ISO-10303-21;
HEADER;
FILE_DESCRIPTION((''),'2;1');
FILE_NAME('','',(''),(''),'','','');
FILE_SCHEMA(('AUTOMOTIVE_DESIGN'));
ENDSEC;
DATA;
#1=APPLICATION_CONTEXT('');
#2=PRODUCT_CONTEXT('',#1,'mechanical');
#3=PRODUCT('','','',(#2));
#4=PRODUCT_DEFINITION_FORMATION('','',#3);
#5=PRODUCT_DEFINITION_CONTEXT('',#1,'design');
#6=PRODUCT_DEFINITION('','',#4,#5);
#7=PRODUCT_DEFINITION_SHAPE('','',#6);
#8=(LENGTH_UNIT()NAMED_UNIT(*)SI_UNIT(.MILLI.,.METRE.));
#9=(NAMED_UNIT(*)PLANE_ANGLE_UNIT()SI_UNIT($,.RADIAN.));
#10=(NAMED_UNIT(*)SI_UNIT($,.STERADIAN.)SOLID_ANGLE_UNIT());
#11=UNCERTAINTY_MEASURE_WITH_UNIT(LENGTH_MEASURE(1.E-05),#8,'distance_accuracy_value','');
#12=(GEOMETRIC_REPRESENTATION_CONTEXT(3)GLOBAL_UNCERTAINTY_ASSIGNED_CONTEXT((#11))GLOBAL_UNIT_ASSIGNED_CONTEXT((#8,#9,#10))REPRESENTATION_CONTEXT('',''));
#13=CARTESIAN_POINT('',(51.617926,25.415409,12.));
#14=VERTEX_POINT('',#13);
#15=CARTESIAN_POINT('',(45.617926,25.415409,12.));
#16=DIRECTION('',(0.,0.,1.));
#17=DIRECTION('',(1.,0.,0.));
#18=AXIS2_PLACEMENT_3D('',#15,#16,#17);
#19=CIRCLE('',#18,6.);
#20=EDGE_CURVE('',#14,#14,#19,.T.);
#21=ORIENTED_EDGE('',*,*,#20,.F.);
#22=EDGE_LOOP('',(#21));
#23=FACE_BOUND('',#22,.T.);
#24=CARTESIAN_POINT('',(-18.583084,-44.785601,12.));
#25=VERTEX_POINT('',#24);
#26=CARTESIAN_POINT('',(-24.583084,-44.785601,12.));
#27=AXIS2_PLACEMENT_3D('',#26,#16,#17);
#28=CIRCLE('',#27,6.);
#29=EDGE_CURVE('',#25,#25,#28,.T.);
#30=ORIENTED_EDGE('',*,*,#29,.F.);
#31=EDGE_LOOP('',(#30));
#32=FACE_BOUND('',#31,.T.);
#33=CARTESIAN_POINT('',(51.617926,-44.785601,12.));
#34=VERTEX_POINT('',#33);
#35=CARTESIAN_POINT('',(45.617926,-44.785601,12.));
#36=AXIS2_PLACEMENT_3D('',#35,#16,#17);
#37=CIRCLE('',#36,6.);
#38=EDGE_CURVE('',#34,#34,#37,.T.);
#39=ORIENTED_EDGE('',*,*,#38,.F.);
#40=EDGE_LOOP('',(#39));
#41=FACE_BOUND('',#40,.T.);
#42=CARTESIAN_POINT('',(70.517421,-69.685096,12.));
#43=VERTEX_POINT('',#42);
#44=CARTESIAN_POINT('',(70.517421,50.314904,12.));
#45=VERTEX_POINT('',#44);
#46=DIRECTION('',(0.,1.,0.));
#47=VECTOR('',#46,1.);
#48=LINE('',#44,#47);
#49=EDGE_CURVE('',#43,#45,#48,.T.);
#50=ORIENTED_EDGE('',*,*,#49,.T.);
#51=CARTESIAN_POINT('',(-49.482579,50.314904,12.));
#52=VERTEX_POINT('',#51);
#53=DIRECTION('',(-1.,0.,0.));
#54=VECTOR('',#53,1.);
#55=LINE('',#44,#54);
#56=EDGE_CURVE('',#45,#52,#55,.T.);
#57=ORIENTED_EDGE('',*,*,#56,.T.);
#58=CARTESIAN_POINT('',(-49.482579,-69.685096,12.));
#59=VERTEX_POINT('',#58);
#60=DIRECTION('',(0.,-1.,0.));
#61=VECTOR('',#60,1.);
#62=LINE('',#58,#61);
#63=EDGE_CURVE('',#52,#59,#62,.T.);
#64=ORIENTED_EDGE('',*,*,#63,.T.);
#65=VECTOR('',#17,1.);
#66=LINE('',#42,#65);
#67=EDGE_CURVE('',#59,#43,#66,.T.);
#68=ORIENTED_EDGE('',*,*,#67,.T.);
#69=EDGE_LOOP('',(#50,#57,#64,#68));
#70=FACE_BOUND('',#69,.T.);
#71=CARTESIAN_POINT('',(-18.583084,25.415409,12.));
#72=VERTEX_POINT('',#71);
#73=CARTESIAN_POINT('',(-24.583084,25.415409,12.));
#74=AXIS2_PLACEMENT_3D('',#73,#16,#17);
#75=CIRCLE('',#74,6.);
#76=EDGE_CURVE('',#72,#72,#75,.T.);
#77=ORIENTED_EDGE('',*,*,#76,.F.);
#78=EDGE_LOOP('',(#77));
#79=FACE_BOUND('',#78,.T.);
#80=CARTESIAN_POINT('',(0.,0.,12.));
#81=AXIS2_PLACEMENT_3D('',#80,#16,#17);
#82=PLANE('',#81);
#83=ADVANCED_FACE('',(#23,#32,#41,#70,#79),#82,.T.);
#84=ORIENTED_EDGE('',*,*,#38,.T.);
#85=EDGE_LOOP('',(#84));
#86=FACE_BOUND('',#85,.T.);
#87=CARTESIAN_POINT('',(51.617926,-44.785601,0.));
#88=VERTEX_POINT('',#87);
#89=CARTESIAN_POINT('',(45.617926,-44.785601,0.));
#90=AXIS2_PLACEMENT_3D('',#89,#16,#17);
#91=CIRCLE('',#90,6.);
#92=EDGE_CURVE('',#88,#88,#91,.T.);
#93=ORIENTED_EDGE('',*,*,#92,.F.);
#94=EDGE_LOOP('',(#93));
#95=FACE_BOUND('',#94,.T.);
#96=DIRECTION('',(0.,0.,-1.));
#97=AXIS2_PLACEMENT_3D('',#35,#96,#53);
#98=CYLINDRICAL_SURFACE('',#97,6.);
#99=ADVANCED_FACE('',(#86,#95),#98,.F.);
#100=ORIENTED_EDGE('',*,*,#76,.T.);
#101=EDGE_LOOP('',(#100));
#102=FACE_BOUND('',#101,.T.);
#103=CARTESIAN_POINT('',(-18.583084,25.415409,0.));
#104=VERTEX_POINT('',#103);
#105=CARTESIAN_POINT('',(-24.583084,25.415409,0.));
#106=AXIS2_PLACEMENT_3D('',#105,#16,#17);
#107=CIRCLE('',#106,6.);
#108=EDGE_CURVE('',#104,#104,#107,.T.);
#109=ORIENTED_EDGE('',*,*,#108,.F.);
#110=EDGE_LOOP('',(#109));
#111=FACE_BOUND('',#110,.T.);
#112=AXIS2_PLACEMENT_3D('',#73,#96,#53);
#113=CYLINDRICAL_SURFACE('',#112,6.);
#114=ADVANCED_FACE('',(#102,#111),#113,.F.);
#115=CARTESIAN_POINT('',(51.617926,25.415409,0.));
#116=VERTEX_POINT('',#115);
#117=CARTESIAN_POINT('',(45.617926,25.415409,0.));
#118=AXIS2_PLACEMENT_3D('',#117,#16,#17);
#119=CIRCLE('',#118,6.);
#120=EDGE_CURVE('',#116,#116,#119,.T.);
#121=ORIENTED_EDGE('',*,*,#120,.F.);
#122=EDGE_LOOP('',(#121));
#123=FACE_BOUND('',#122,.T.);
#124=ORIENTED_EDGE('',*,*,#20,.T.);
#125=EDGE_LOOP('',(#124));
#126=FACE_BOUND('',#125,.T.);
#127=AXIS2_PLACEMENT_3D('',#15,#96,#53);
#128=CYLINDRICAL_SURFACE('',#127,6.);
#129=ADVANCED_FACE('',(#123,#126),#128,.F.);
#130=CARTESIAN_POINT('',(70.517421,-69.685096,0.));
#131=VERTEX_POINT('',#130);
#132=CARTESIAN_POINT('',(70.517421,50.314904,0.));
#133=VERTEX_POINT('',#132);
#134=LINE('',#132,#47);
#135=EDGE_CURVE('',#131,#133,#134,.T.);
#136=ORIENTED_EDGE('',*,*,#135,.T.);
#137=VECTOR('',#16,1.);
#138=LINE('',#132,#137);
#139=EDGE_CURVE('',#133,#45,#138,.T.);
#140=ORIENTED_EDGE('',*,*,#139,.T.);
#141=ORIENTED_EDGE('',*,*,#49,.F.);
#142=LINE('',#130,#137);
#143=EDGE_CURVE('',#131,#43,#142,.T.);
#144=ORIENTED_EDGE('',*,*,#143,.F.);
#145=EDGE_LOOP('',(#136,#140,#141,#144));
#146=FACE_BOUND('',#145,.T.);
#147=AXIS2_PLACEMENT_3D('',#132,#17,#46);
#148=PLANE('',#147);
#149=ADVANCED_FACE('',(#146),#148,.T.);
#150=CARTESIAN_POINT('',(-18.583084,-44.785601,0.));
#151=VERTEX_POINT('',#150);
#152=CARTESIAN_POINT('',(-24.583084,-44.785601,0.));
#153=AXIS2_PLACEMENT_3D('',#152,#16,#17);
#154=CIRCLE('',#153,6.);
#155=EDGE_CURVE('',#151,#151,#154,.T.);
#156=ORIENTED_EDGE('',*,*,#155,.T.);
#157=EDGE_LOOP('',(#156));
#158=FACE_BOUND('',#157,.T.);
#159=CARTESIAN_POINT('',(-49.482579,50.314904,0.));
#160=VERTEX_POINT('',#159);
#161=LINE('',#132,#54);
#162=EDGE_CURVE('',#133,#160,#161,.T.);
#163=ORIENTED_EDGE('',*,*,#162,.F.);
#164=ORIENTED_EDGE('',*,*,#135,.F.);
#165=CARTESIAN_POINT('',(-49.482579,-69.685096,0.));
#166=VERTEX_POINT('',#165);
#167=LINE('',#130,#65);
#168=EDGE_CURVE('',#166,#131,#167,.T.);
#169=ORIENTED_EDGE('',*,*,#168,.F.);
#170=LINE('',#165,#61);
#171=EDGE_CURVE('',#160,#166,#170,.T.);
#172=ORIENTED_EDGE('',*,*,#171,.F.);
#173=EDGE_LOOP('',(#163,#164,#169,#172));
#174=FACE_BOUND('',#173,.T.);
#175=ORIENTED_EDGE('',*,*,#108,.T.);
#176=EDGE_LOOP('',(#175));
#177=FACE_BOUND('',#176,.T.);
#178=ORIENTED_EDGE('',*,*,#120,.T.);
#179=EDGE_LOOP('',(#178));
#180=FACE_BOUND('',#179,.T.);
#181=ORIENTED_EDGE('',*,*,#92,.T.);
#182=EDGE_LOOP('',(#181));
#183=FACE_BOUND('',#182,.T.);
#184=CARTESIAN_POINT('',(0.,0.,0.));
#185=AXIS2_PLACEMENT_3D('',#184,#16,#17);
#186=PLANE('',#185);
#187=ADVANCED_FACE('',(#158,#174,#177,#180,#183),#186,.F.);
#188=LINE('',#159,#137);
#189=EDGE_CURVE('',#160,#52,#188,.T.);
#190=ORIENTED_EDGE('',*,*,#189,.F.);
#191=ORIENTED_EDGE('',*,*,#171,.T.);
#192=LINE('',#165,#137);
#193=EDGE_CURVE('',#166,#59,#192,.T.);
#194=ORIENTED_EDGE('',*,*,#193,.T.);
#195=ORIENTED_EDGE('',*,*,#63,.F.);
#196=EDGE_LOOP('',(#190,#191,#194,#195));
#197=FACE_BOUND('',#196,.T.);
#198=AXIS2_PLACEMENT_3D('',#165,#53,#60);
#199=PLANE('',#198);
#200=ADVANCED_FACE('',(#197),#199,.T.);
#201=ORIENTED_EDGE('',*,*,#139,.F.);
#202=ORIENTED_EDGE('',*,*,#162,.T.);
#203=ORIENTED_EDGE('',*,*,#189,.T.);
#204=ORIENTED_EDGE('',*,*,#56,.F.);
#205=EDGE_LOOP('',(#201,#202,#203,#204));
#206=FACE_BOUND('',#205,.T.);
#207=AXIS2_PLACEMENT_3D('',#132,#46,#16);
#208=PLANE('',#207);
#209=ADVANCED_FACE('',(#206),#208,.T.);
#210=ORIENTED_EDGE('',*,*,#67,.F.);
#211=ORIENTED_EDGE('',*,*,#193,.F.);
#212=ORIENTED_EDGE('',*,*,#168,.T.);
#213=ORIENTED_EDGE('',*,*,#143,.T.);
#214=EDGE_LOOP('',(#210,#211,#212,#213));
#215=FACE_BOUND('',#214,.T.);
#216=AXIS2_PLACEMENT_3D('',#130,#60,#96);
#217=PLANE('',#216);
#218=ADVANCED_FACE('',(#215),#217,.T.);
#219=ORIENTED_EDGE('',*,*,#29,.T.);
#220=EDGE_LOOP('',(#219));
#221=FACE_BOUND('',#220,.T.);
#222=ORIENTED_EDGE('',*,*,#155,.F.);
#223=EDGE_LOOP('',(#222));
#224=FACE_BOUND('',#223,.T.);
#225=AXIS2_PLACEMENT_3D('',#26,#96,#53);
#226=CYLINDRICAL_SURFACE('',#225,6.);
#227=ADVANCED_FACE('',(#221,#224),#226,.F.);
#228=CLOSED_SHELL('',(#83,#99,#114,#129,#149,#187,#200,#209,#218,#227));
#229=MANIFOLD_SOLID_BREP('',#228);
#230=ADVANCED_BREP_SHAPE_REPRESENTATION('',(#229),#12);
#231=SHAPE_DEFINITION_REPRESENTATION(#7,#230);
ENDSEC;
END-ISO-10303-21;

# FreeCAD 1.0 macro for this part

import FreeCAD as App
import Part
import Sketcher


def add_polygon(sketch, points):
    """Adds a closed chain of lines whose ends are joined by coincident constraints."""
    first, n = sketch.GeometryCount, len(points)
    for a, b in zip(points, points[1:] + points[:1]):
        sketch.addGeometry(Part.LineSegment(App.Vector(*a, 0), App.Vector(*b, 0)), False)
    for i in range(n):
        sketch.addConstraint(Sketcher.Constraint("Coincident", first + i, 2, first + (i + 1) % n, 1))

doc = App.newDocument("Part")
params = doc.addObject("Spreadsheet::Sheet", "Params")
for row, (alias, value) in enumerate([
    ("sketch1_diameter", "12 mm"),
    ("sketch1_width", "90 mm"),
    ("pad1_length", "12 mm"),
    ("sketch2_width", "120 mm"),
    ("sketch2_width2", "90 mm"),
    ("pad2_length", "12 mm"),
], start=1):
    params.set(f"A{row}", alias)
    params.set(f"B{row}", "=" + value)
    params.setAlias(f"B{row}", alias)

body = doc.addObject("PartDesign::Body", "Body")

# Sketch on XY plane
sketch1 = body.newObject("Sketcher::SketchObject", "Sketch")
sketch1.AttachmentSupport = (doc.getObject("XY_Plane"), [""])
sketch1.MapMode = "FlatFace"
add_polygon(sketch1, [(-34, 35), (-34, -55), (56, -55), (56, 35)])  # lines 0-3
sketch1.addGeometry(Part.Circle(App.Vector(-25, -45, 0), App.Vector(0, 0, 1), 6), False)  # 4
sketch1.addGeometry(Part.Circle(App.Vector(46, -45, 0), App.Vector(0, 0, 1), 6), False)  # 5
sketch1.addGeometry(Part.Circle(App.Vector(-25, 25, 0), App.Vector(0, 0, 1), 6), False)  # 6
sketch1.addGeometry(Part.Circle(App.Vector(46, 25, 0), App.Vector(0, 0, 1), 6), False)  # 7
sketch1.addConstraint([
    Sketcher.Constraint("Vertical", 0),
    Sketcher.Constraint("Horizontal", 1),
    Sketcher.Constraint("Vertical", 2),
    Sketcher.Constraint("Horizontal", 3),
    Sketcher.Constraint("Equal", 4, 5),
    Sketcher.Constraint("Equal", 5, 6),
    Sketcher.Constraint("Equal", 6, 7),
    Sketcher.Constraint("Horizontal", 4, 3, 5, 3),
    Sketcher.Constraint("Horizontal", 6, 3, 7, 3),
    Sketcher.Constraint("Vertical", 4, 3, 6, 3),
    Sketcher.Constraint("Vertical", 5, 3, 7, 3),
    Sketcher.Constraint("Equal", 3, 0),
    Sketcher.Constraint("Diameter", 4, 12.0),
    Sketcher.Constraint("DistanceX", 1, 1, 1, 2, 90.0),
    Sketcher.Constraint("DistanceY", 4, 3, -1, 1, 44.785601),
    Sketcher.Constraint("DistanceY", -1, 1, 6, 3, 25.415409),
    Sketcher.Constraint("DistanceX", 0, 2, -1, 1, 34.482579),
    Sketcher.Constraint("DistanceX", 4, 3, 5, 3, 70.20101),
    Sketcher.Constraint("DistanceX", 4, 3, -1, 1, 24.583084),
    Sketcher.Constraint("DistanceY", 0, 2, -1, 1, 54.685096),
])
sketch1.setExpression("Constraints[16]", "Params.sketch1_diameter")
sketch1.setExpression("Constraints[17]", "Params.sketch1_width")
pad1 = body.newObject("PartDesign::Pad", "Pad")
pad1.Profile = sketch1
pad1.setExpression("Length", "Params.pad1_length")

# Sketch on XY plane
sketch2 = body.newObject("Sketcher::SketchObject", "Sketch001")
sketch2.AttachmentSupport = (doc.getObject("XY_Plane"), [""])
sketch2.MapMode = "FlatFace"
sketch2.AttachmentOffset = App.Placement(App.Vector(0, 0, 12), App.Rotation())
add_polygon(sketch2, [(-49, 50), (-49, -70), (71, -70), (71, 50)])  # lines 0-3
add_polygon(sketch2, [(56, -55), (-34, -55), (-34, 35), (56, 35)])  # lines 4-7
sketch2.addConstraint([
    Sketcher.Constraint("Vertical", 0),
    Sketcher.Constraint("Horizontal", 1),
    Sketcher.Constraint("Vertical", 2),
    Sketcher.Constraint("Horizontal", 3),
    Sketcher.Constraint("Horizontal", 4),
    Sketcher.Constraint("Vertical", 5),
    Sketcher.Constraint("Horizontal", 6),
    Sketcher.Constraint("Vertical", 7),
    Sketcher.Constraint("Equal", 3, 0),
    Sketcher.Constraint("Equal", 6, 5),
    Sketcher.Constraint("DistanceX", 1, 1, 1, 2, 120.0),
    Sketcher.Constraint("DistanceX", 4, 2, 4, 1, 90.0),
    Sketcher.Constraint("DistanceX", 0, 2, 4, 2, 15.0),
    Sketcher.Constraint("DistanceY", 0, 2, 4, 2, 15.0),
    Sketcher.Constraint("DistanceX", 0, 2, -1, 1, 49.482579),
    Sketcher.Constraint("DistanceY", 0, 2, -1, 1, 69.685096),
])
sketch2.setExpression("Constraints[18]", "Params.sketch2_width")
sketch2.setExpression("Constraints[19]", "Params.sketch2_width2")
pad2 = body.newObject("PartDesign::Pad", "Pad001")
pad2.Profile = sketch2
pad2.setExpression("Length", "Params.pad2_length")
pad2.Reversed = True

doc.recompute()
